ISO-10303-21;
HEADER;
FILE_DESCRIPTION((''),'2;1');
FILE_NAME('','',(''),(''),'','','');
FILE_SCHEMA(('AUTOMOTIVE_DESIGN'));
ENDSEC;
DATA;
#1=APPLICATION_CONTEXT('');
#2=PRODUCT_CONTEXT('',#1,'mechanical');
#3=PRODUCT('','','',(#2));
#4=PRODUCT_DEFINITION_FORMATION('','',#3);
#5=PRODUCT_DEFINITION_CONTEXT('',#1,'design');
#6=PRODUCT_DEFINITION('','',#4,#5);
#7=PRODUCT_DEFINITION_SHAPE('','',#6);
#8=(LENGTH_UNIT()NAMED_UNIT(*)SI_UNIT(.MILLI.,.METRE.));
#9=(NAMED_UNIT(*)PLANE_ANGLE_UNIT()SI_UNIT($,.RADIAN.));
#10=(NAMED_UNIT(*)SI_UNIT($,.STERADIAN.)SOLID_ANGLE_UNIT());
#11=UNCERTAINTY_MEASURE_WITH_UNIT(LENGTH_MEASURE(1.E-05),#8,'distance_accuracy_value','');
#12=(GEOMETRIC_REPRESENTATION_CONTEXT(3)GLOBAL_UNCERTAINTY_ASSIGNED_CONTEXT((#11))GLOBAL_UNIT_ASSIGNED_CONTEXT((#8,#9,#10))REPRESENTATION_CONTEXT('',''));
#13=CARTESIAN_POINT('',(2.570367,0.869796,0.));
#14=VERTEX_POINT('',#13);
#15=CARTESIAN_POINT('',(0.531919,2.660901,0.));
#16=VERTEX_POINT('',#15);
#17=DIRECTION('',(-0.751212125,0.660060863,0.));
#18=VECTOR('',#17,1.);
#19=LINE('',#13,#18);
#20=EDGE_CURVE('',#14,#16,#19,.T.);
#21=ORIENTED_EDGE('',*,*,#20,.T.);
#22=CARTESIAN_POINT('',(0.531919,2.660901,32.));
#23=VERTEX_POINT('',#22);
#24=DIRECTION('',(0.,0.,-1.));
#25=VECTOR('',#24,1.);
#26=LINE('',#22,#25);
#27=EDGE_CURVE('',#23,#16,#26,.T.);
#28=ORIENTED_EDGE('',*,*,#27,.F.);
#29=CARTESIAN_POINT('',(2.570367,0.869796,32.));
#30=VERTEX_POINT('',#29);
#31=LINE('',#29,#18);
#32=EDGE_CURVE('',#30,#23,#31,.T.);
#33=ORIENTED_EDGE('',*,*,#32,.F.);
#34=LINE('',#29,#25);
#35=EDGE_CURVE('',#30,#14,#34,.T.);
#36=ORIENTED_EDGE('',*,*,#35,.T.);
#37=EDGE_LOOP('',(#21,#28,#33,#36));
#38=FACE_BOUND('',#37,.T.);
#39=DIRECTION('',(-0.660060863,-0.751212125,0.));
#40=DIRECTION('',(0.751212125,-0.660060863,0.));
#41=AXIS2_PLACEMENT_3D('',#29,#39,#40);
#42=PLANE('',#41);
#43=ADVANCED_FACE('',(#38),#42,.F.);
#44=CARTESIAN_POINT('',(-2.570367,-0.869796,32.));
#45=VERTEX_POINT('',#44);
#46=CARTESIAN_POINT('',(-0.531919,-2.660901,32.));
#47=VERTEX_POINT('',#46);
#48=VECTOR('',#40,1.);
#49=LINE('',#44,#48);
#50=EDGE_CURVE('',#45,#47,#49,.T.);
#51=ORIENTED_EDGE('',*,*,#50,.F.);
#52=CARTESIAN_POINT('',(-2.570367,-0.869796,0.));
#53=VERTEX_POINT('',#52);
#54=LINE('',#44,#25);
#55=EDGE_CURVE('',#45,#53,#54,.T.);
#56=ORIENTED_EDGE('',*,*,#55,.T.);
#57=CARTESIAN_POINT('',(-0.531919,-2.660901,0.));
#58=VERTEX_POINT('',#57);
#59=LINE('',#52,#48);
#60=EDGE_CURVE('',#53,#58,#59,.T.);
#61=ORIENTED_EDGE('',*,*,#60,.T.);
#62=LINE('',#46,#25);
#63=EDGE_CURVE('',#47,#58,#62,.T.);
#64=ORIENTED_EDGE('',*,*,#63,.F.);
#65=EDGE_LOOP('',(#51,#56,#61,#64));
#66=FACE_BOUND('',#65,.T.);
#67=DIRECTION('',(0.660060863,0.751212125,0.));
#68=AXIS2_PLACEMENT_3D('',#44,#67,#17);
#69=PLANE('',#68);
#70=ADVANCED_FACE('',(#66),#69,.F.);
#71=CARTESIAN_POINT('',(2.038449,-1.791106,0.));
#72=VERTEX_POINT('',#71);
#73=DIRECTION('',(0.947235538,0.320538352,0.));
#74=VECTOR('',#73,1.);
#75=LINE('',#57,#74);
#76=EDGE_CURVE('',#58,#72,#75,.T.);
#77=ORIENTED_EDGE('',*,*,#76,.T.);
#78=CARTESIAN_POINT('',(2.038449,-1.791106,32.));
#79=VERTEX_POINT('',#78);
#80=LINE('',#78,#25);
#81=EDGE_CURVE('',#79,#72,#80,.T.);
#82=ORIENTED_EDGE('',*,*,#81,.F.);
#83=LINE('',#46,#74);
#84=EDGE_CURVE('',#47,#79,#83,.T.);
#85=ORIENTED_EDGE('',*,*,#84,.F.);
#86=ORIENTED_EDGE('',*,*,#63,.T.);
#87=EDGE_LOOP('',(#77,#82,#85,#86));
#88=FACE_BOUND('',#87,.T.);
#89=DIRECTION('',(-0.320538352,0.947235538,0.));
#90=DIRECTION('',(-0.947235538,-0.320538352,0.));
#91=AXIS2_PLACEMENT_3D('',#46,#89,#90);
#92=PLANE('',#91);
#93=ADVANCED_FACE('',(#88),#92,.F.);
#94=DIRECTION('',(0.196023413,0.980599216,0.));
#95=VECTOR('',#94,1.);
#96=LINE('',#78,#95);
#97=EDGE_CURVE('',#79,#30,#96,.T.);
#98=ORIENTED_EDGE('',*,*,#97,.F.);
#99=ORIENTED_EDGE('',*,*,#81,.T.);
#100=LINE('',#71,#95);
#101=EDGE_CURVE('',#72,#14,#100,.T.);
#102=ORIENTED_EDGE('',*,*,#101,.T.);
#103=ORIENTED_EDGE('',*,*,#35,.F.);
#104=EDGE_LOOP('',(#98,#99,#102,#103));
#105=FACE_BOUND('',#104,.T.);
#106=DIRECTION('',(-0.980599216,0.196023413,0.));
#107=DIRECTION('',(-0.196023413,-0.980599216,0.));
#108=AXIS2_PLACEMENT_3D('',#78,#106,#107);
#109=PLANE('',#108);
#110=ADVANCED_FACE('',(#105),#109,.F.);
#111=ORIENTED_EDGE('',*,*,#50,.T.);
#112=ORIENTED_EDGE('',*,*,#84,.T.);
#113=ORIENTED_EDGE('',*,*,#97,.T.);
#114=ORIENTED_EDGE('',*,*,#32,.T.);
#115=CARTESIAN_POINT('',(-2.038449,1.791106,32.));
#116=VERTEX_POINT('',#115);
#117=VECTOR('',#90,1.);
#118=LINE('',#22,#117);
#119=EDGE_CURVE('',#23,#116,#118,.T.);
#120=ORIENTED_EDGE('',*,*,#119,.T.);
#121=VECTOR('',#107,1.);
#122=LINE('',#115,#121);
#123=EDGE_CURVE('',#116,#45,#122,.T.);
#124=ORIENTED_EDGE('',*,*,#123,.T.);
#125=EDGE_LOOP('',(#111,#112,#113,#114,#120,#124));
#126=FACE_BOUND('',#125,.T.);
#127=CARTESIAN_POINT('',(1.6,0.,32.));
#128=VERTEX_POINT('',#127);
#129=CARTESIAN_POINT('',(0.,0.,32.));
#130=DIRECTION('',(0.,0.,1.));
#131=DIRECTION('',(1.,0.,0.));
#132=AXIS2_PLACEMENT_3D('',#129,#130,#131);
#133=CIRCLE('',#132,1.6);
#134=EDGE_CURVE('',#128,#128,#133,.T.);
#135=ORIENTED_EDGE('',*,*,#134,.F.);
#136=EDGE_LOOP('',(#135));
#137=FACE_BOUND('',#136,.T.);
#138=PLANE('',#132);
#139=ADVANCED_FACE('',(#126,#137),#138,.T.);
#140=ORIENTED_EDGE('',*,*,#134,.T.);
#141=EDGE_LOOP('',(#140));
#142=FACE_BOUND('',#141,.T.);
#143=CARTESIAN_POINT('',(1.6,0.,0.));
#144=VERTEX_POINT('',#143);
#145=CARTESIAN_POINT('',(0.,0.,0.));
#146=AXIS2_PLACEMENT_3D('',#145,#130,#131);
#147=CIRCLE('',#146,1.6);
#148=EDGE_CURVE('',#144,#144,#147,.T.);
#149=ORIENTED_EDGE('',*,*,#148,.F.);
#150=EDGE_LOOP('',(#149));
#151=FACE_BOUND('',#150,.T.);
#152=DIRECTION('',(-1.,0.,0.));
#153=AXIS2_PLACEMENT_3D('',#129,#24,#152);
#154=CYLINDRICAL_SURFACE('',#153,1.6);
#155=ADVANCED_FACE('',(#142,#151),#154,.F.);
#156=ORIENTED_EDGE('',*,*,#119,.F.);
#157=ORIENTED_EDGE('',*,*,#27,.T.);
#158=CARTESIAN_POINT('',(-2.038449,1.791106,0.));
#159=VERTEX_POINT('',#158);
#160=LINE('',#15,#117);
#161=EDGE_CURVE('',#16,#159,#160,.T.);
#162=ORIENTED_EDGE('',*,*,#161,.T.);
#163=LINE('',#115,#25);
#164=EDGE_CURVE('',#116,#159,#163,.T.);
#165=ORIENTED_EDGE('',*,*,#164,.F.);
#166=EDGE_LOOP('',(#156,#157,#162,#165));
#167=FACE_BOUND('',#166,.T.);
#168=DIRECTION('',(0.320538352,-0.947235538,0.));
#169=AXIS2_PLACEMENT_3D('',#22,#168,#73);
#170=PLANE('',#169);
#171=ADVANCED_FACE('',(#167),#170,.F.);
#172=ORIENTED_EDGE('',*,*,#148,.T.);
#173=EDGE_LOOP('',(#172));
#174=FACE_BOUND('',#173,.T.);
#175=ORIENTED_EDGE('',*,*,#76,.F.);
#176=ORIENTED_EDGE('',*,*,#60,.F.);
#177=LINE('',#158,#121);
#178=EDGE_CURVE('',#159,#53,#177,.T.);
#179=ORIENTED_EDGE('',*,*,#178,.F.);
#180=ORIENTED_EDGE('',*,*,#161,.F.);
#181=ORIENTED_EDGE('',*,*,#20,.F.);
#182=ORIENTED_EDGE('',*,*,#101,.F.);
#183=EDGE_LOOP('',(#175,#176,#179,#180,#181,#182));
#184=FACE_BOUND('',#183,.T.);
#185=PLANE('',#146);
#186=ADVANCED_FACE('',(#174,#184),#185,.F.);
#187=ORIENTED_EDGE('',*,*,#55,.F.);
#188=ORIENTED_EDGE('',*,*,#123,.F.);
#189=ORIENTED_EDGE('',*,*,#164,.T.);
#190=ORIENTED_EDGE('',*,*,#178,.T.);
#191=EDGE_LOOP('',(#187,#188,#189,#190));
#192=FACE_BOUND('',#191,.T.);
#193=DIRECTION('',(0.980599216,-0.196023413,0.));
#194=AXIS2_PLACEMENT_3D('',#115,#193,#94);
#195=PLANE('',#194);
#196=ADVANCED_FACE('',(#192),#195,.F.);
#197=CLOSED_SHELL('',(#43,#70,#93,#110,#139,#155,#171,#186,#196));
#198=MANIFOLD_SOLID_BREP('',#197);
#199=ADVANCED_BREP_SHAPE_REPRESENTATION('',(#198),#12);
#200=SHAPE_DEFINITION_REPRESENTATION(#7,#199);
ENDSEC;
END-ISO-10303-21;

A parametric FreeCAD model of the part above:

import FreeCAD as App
import Part
import Sketcher

V = App.Vector
Q = App.Units.Quantity

doc = App.newDocument("Part")
body = doc.addObject("PartDesign::Body", "Body")

# Sketch on XY plane
sketch1 = doc.addObject("Sketcher::SketchObject", "Sketch")
body.addObject(sketch1)
sketch1.AttachmentSupport = (doc.XY_Plane, [""])
sketch1.MapMode = "FlatFace"
sketch1.addGeometry(Part.LineSegment(V(2, -1.8, 0), V(2.6, 0.9, 0)), False)
sketch1.addGeometry(Part.LineSegment(V(2.6, 0.9, 0), V(0.5, 2.7, 0)), False)
sketch1.addGeometry(Part.LineSegment(V(0.5, 2.7, 0), V(-2, 1.8, 0)), False)
sketch1.addGeometry(Part.LineSegment(V(-2, 1.8, 0), V(-2.6, -0.9, 0)), False)
sketch1.addGeometry(Part.LineSegment(V(-2.6, -0.9, 0), V(-0.5, -2.7, 0)), False)
sketch1.addGeometry(Part.LineSegment(V(-0.5, -2.7, 0), V(2, -1.8, 0)), False)
sketch1.addGeometry(Part.Circle(V(0, 0, 0), V(0, 0, 1), 1.6), False)
sketch1.addConstraint(Sketcher.Constraint("Coincident", 0, 2, 1, 1))
sketch1.addConstraint(Sketcher.Constraint("Coincident", 1, 2, 2, 1))
sketch1.addConstraint(Sketcher.Constraint("Coincident", 2, 2, 3, 1))
sketch1.addConstraint(Sketcher.Constraint("Coincident", 3, 2, 4, 1))
sketch1.addConstraint(Sketcher.Constraint("Coincident", 4, 2, 5, 1))
sketch1.addConstraint(Sketcher.Constraint("Coincident", 5, 2, 0, 1))
sketch1.addConstraint(Sketcher.Constraint("Coincident", 6, 3, -1, 1))
sketch1.addConstraint(Sketcher.Constraint("Symmetric", 0, 2, 3, 2, -1, 1))
sketch1.addConstraint(Sketcher.Constraint("Symmetric", 1, 2, 4, 2, -1, 1))
sketch1.addConstraint(Sketcher.Constraint("Symmetric", 2, 2, 5, 2, -1, 1))
sketch1.addConstraint(Sketcher.Constraint("Equal", 0, 1))
sketch1.addConstraint(Sketcher.Constraint("Equal", 1, 2))
sketch1.addConstraint(Sketcher.Constraint("Diameter", 6, Q("3.2 mm")))
sketch1.addConstraint(Sketcher.Constraint("DistanceY", -1, 1, 1, 2, Q("2.660901 mm")))
sketch1.addConstraint(Sketcher.Constraint("DistanceY", 3, 2, 2, 2, Q("2.660901 mm")))
sketch1.addConstraint(Sketcher.Constraint("DistanceX", -1, 1, 1, 2, Q("0.531919 mm")))
sketch1.addConstraint(Sketcher.Constraint("DistanceX", 2, 2, -1, 1, Q("2.038449 mm")))
pad1 = doc.addObject("PartDesign::Pad", "Pad")
body.addObject(pad1)
pad1.Profile = sketch1
pad1.Length = 32

doc.recompute()
